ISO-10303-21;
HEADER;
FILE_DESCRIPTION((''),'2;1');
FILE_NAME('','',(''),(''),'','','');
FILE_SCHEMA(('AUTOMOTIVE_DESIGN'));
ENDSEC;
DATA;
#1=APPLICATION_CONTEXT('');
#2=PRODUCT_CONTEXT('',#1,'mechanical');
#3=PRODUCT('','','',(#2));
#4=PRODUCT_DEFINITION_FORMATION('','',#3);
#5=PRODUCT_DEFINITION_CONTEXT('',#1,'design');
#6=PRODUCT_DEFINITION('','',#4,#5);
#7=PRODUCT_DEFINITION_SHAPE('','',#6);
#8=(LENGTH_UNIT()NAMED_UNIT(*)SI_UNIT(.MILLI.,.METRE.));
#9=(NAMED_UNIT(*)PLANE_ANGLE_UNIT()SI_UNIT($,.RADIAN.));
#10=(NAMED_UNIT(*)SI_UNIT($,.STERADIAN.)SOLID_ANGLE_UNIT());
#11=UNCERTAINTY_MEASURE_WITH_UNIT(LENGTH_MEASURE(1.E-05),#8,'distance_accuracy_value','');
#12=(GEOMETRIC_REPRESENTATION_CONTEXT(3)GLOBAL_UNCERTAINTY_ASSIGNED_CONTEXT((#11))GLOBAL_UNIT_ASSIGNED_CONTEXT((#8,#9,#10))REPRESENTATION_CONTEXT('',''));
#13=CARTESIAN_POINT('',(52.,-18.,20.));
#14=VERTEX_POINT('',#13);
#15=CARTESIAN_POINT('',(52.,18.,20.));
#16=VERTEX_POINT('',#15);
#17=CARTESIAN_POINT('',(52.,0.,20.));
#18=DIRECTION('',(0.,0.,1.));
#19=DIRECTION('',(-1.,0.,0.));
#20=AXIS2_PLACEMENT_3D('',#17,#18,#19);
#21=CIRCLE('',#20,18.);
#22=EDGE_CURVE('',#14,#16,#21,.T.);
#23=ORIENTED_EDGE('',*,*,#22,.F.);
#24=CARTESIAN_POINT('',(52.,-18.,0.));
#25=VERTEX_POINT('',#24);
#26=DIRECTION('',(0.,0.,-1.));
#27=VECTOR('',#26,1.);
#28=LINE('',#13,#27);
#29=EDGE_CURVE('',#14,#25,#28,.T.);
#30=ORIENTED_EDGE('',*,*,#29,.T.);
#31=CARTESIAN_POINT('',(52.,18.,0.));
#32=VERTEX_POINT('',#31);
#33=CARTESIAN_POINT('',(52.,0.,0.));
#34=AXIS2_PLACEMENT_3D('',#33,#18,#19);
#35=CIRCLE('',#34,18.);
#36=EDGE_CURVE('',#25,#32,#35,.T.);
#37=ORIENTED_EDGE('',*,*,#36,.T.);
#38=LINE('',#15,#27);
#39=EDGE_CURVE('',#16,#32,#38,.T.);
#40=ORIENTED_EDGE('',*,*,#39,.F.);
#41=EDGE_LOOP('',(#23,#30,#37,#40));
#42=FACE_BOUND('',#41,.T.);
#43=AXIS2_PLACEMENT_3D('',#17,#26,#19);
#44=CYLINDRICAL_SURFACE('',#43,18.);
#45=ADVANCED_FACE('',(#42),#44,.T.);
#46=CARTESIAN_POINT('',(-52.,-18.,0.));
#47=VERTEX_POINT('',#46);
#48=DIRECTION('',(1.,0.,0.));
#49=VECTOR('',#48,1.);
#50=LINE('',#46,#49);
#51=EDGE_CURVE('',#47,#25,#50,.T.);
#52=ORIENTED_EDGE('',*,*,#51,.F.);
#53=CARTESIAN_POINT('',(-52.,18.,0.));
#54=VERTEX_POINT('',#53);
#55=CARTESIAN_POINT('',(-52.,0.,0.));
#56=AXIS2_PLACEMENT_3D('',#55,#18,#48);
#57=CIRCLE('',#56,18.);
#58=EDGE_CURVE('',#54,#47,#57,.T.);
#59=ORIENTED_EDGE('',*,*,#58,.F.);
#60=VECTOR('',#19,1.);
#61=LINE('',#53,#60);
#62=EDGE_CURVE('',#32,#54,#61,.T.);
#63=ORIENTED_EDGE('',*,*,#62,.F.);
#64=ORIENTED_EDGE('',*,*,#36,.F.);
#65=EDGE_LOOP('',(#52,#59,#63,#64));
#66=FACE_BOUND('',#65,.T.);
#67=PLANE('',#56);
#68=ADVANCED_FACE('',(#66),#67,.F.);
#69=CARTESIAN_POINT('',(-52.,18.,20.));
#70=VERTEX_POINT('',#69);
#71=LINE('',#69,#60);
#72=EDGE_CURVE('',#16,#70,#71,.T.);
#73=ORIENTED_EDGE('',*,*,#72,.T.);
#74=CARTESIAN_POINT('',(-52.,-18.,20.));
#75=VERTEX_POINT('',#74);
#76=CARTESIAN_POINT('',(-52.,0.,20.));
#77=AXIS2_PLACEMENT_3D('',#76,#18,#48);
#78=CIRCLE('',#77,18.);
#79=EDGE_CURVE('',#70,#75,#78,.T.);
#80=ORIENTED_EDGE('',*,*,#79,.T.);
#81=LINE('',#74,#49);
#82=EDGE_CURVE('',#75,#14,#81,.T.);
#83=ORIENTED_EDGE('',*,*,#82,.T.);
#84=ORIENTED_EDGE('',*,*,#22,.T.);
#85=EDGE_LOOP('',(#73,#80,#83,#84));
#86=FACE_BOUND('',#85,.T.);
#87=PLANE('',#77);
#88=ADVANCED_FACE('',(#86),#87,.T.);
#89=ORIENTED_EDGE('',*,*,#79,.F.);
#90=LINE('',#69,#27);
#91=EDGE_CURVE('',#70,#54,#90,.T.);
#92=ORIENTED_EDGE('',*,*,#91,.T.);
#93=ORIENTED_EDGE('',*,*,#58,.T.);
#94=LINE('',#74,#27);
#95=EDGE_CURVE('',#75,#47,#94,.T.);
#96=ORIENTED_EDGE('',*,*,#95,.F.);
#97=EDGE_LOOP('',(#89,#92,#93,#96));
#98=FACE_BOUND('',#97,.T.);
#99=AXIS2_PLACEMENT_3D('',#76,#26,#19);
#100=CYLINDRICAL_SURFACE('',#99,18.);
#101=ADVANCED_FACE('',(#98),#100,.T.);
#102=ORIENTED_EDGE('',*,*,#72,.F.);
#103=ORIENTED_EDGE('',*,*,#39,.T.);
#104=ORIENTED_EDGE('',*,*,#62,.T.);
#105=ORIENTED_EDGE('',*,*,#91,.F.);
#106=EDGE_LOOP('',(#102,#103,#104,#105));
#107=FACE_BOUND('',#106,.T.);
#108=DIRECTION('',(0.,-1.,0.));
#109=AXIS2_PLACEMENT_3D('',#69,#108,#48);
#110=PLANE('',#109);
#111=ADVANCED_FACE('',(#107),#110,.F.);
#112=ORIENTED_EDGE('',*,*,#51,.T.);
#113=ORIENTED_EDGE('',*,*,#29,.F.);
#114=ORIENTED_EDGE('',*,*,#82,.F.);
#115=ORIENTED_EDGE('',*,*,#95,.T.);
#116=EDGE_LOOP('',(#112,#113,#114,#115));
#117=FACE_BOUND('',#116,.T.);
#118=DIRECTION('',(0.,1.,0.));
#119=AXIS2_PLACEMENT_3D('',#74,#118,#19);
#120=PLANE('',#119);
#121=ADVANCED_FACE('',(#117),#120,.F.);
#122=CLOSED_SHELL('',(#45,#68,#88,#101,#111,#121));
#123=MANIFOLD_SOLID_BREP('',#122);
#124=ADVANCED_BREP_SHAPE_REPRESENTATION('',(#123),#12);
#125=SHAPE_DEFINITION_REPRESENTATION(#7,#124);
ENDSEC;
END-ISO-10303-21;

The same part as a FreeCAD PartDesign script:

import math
import FreeCAD as App
import Part
import Sketcher
Q = App.Units.Quantity

doc = App.newDocument("Part")
params = doc.addObject("Spreadsheet::Sheet", "Params")
for row, (alias, value) in enumerate([
    ("sketch1_radius", "18 mm"),
    ("sketch1_width", "104 mm"),
    ("pad1_length", "20 mm"),
], start=1):
    params.set(f"A{row}", alias)
    params.set(f"B{row}", "=" + value)
    params.setAlias(f"B{row}", alias)

body = doc.addObject("PartDesign::Body", "Body")

# Sketch on XY plane
sketch1 = doc.addObject("Sketcher::SketchObject", "Sketch")
body.addObject(sketch1)
sketch1.AttachmentSupport = (doc.XY_Plane, [""])
sketch1.MapMode = "FlatFace"
sketch1.addGeometry([
    Part.LineSegment(App.Vector(52, 18, 0), App.Vector(-52, 18, 0)),
    Part.ArcOfCircle(Part.Circle(App.Vector(-52, 0, 0), App.Vector(0, 0, 1), 18), math.radians(90), math.radians(270)),
    Part.LineSegment(App.Vector(-52, -18, 0), App.Vector(52, -18, 0)),
    Part.ArcOfCircle(Part.Circle(App.Vector(52, 0, 0), App.Vector(0, 0, 1), 18), math.radians(-90), math.radians(90)),
], False)
sketch1.addConstraint([
    Sketcher.Constraint("Tangent", 0, 2, 1, 1),
    Sketcher.Constraint("Tangent", 1, 2, 2, 1),
    Sketcher.Constraint("Tangent", 2, 2, 3, 1),
    Sketcher.Constraint("Tangent", 3, 2, 0, 1),
    Sketcher.Constraint("Horizontal", 0),
    Sketcher.Constraint("Horizontal", 2),
    Sketcher.Constraint("Symmetric", 1, 3, 3, 3, -1, 1),
    Sketcher.Constraint("Radius", 1, Q("18 mm")),
    Sketcher.Constraint("DistanceX", 0, 2, 0, 1, Q("104 mm")),
])
sketch1.setExpression("Constraints[7]", "Params.sketch1_radius")
sketch1.setExpression("Constraints[8]", "Params.sketch1_width")
pad1 = doc.addObject("PartDesign::Pad", "Pad")
body.addObject(pad1)
pad1.Profile = sketch1
pad1.setExpression("Length", "Params.pad1_length")

doc.recompute()
